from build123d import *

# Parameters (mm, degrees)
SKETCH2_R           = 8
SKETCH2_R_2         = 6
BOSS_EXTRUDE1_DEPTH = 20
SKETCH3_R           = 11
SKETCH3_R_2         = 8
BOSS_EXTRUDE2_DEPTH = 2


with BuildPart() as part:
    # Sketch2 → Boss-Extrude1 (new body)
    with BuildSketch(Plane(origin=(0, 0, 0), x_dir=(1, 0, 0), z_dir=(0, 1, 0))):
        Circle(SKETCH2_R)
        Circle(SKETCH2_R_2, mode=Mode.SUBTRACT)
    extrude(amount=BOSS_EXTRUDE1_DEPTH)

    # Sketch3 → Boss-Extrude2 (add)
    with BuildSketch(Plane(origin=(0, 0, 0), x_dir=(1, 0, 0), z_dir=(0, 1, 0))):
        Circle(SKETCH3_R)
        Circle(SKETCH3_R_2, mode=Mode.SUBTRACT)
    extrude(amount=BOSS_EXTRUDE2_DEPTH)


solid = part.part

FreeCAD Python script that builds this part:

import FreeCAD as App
import Part
import Sketcher
Q = App.Units.Quantity

doc = App.newDocument("Part")
body = doc.addObject("PartDesign::Body", "Body")

# Sketch on XZ plane
sketch1 = body.newObject("Sketcher::SketchObject", "Sketch")
sketch1.AttachmentSupport = (doc.getObject("XZ_Plane"), [""])
sketch1.MapMode = "FlatFace"
sketch1.addGeometry(Part.Circle(App.Vector(0, 0, 0), App.Vector(0, 0, 1), 8), False)
sketch1.addGeometry(Part.Circle(App.Vector(0, 0, 0), App.Vector(0, 0, 1), 6), False)
sketch1.addConstraint(Sketcher.Constraint("Coincident", 0, 3, -1, 1))
sketch1.addConstraint(Sketcher.Constraint("Coincident", 1, 3, -1, 1))
sketch1.addConstraint(Sketcher.Constraint("Diameter", 0, Q("16 mm")))
sketch1.addConstraint(Sketcher.Constraint("Diameter", 1, Q("12 mm")))
pad1 = body.newObject("PartDesign::Pad", "Pad")
pad1.Profile = sketch1
pad1.Length = 20
pad1.Reversed = True

# Sketch on XZ plane
sketch2 = body.newObject("Sketcher::SketchObject", "Sketch001")
sketch2.AttachmentSupport = (doc.getObject("XZ_Plane"), [""])
sketch2.MapMode = "FlatFace"
sketch2.addGeometry(Part.Circle(App.Vector(0, 0, 0), App.Vector(0, 0, 1), 11), False)
sketch2.addGeometry(Part.Circle(App.Vector(0, 0, 0), App.Vector(0, 0, 1), 8), False)
sketch2.addConstraint(Sketcher.Constraint("Coincident", 0, 3, -1, 1))
sketch2.addConstraint(Sketcher.Constraint("Coincident", 1, 3, -1, 1))
sketch2.addConstraint(Sketcher.Constraint("Diameter", 0, Q("22 mm")))
sketch2.addConstraint(Sketcher.Constraint("Diameter", 1, Q("16 mm")))
pad2 = body.newObject("PartDesign::Pad", "Pad001")
pad2.Profile = sketch2
pad2.Length = 2
pad2.Reversed = True

doc.recompute()
